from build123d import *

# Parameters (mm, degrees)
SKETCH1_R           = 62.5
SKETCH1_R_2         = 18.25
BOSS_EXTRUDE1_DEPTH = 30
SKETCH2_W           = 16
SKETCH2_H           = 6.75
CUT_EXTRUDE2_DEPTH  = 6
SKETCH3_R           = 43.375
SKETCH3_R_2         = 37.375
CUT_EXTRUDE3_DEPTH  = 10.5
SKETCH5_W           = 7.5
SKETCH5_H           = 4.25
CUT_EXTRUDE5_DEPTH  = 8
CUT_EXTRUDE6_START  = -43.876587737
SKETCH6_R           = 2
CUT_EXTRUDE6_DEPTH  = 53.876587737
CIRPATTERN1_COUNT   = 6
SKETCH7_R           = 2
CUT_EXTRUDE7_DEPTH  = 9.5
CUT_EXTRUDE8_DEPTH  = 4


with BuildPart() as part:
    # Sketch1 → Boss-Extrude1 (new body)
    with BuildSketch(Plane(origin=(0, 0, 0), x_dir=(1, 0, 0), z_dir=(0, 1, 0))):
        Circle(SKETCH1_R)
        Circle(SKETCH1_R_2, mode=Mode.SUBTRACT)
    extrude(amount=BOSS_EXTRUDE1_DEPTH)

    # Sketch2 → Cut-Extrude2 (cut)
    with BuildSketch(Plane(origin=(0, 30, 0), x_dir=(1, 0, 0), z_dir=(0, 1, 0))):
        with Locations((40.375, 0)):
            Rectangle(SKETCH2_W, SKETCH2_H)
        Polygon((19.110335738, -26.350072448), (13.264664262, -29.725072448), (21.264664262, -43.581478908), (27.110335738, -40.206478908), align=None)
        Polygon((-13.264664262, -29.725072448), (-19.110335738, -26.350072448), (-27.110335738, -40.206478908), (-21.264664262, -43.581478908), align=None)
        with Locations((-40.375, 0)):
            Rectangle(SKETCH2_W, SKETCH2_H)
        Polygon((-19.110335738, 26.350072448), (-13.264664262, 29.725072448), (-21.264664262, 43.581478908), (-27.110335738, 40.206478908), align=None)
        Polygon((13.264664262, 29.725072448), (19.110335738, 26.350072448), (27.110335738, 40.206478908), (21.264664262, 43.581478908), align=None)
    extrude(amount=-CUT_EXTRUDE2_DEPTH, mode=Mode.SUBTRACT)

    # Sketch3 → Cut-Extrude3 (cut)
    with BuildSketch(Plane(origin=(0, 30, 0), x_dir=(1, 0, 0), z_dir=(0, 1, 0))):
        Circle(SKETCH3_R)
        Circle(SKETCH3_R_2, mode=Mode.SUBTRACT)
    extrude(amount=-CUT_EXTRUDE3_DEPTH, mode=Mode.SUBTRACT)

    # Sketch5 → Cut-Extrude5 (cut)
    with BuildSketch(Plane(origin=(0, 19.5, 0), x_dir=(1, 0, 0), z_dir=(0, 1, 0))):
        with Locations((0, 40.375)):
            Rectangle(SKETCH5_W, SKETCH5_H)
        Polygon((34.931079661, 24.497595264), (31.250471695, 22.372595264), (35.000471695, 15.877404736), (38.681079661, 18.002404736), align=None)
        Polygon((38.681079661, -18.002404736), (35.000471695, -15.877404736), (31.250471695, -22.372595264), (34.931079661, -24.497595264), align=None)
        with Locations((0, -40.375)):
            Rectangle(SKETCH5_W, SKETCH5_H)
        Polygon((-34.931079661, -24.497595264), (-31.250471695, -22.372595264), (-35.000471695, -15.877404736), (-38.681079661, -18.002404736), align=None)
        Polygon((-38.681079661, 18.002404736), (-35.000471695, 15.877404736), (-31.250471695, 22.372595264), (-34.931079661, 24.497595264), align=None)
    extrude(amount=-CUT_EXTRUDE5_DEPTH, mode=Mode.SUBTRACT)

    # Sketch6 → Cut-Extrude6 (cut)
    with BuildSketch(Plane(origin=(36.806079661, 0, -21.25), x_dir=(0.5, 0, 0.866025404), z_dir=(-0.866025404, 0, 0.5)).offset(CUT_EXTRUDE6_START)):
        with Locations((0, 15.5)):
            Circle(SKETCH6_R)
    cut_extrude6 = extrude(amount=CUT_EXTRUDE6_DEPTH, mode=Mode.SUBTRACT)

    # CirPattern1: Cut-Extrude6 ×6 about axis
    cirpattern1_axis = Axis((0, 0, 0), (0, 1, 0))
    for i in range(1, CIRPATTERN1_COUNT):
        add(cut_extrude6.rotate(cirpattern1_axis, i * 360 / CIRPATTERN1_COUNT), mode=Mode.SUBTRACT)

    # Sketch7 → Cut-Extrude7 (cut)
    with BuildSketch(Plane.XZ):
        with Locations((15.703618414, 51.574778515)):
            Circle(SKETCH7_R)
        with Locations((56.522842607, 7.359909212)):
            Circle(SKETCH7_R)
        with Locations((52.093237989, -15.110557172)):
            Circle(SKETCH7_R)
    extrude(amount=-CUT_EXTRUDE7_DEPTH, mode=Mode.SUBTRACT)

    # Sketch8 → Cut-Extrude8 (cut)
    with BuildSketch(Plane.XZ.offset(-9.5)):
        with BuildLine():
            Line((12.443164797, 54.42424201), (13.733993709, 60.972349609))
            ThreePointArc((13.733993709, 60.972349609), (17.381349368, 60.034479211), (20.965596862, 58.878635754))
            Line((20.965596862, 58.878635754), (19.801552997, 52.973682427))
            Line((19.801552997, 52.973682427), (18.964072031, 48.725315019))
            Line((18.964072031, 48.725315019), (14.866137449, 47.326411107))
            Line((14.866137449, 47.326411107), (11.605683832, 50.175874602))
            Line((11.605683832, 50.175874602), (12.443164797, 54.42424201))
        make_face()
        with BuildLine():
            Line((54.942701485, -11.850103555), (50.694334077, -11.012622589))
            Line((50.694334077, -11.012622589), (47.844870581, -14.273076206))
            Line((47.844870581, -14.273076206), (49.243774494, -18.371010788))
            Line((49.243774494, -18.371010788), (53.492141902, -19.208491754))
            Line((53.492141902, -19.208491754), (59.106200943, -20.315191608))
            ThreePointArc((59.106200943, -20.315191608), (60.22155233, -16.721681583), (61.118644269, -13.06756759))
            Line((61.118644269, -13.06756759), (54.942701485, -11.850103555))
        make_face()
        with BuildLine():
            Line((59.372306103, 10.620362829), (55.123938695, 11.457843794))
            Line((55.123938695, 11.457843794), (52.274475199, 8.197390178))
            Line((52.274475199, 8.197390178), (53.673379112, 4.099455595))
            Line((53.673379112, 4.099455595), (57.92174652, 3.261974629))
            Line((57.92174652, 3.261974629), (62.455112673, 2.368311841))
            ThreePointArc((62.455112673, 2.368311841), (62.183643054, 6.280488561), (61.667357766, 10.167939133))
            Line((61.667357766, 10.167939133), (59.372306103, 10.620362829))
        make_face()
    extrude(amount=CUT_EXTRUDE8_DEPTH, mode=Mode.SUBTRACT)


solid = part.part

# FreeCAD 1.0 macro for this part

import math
import FreeCAD as App
import Part
import Sketcher
from FreeCAD import Vector
Q = App.Units.Quantity


def add_polygon(sketch, points):
    """Adds a closed chain of lines whose ends are joined by coincident constraints."""
    first, n = sketch.GeometryCount, len(points)
    for a, b in zip(points, points[1:] + points[:1]):
        sketch.addGeometry(Part.LineSegment(App.Vector(*a, 0), App.Vector(*b, 0)), False)
    for i in range(n):
        sketch.addConstraint(Sketcher.Constraint("Coincident", first + i, 2, first + (i + 1) % n, 1))

doc = App.newDocument("Part")
body = doc.addObject("PartDesign::Body", "Body")

# Sketch on XZ plane
sketch1 = doc.addObject("Sketcher::SketchObject", "Sketch")
body.addObject(sketch1)
sketch1.AttachmentSupport = (doc.XZ_Plane, [""])
sketch1.MapMode = "FlatFace"
sketch1.addGeometry(Part.Circle(Vector(0, 0, 0), Vector(0, 0, 1), 62), False)
sketch1.addGeometry(Part.Circle(Vector(0, 0, 0), Vector(0, 0, 1), 18), False)
sketch1.addConstraint(Sketcher.Constraint("Coincident", 0, 3, -1, 1))
sketch1.addConstraint(Sketcher.Constraint("Coincident", 1, 3, -1, 1))
sketch1.addConstraint(Sketcher.Constraint("Diameter", 0, Q("125 mm")))
sketch1.addConstraint(Sketcher.Constraint("Diameter", 1, Q("36.5 mm")))
pad1 = doc.addObject("PartDesign::Pad", "Pad")
body.addObject(pad1)
pad1.Profile = sketch1
pad1.Length = 30
pad1.Reversed = True

# Sketch on XZ plane
sketch2 = doc.addObject("Sketcher::SketchObject", "Sketch001")
body.addObject(sketch2)
sketch2.AttachmentSupport = (doc.XZ_Plane, [""])
sketch2.MapMode = "FlatFace"
sketch2.AttachmentOffset = App.Placement(Vector(0, 0, -30), App.Rotation())
add_polygon(sketch2, [(32, -3), (32, 3), (48, 3), (48, -3)])  # lines 0-3
add_polygon(sketch2, [(19, 26), (13, 30), (21, 44), (27, 40)])  # lines 4-7
add_polygon(sketch2, [(-13, 30), (-19, 26), (-27, 40), (-21, 44)])  # lines 8-11
add_polygon(sketch2, [(-48, -3), (-48, 3), (-32, 3), (-32, -3)])  # lines 12-15
add_polygon(sketch2, [(-19, -26), (-13, -30), (-21, -44), (-27, -40)])  # lines 16-19
add_polygon(sketch2, [(13, -30), (19, -26), (27, -40), (21, -44)])  # lines 20-23
sketch2.addConstraint(Sketcher.Constraint("Vertical", 0))
sketch2.addConstraint(Sketcher.Constraint("Horizontal", 1))
sketch2.addConstraint(Sketcher.Constraint("Vertical", 2))
sketch2.addConstraint(Sketcher.Constraint("Horizontal", 3))
sketch2.addConstraint(Sketcher.Constraint("Vertical", 12))
sketch2.addConstraint(Sketcher.Constraint("Horizontal", 13))
sketch2.addConstraint(Sketcher.Constraint("Vertical", 14))
sketch2.addConstraint(Sketcher.Constraint("Horizontal", 15))
sketch2.addConstraint(Sketcher.Constraint("Symmetric", 2, 2, 12, 2, -1, 1))
sketch2.addConstraint(Sketcher.Constraint("Symmetric", 0, 2, 14, 2, -1, 1))
sketch2.addConstraint(Sketcher.Constraint("Symmetric", 4, 2, 16, 2, -1, 1))
sketch2.addConstraint(Sketcher.Constraint("Symmetric", 5, 2, 17, 2, -1, 1))
sketch2.addConstraint(Sketcher.Constraint("Symmetric", 6, 2, 18, 2, -1, 1))
sketch2.addConstraint(Sketcher.Constraint("Symmetric", 7, 2, 19, 2, -1, 1))
sketch2.addConstraint(Sketcher.Constraint("Symmetric", 8, 2, 20, 2, -1, 1))
sketch2.addConstraint(Sketcher.Constraint("Symmetric", 9, 2, 21, 2, -1, 1))
sketch2.addConstraint(Sketcher.Constraint("Symmetric", 10, 2, 22, 2, -1, 1))
sketch2.addConstraint(Sketcher.Constraint("Symmetric", 11, 2, 23, 2, -1, 1))
sketch2.addConstraint(Sketcher.Constraint("Symmetric", 7, 2, 8, 2, -2))
sketch2.addConstraint(Sketcher.Constraint("Symmetric", 6, 2, 9, 2, -2))
sketch2.addConstraint(Sketcher.Constraint("Symmetric", 5, 2, 10, 2, -2))
sketch2.addConstraint(Sketcher.Constraint("Symmetric", 4, 2, 11, 2, -2))
sketch2.addConstraint(Sketcher.Constraint("Perpendicular", 4, 5))
sketch2.addConstraint(Sketcher.Constraint("Perpendicular", 5, 6))
sketch2.addConstraint(Sketcher.Constraint("Perpendicular", 6, 7))
sketch2.addConstraint(Sketcher.Constraint("Horizontal", 1, 2, 12, 2))
sketch2.addConstraint(Sketcher.Constraint("DistanceX", 1, 1, 1, 2, Q("16 mm")))
sketch2.addConstraint(Sketcher.Constraint("Angle", 4, Q("150 deg")))
sketch2.addConstraint(Sketcher.Constraint("Distance", 5, Q("16 mm")))
sketch2.addConstraint(Sketcher.Constraint("DistanceY", 0, 1, 0, 2, Q("6.75 mm")))
sketch2.addConstraint(Sketcher.Constraint("Distance", 4, Q("6.75 mm")))
sketch2.addConstraint(Sketcher.Constraint("DistanceX", -1, 1, 0, 2, Q("32.375 mm")))
sketch2.addConstraint(Sketcher.Constraint("DistanceX", 8, 2, 4, 2, Q("32.375 mm")))
sketch2.addConstraint(Sketcher.Constraint("DistanceY", -1, 1, 5, 2, Q("43.581479 mm")))
pocket1 = doc.addObject("PartDesign::Pocket", "Pocket")
body.addObject(pocket1)
pocket1.Profile = sketch2
pocket1.Length = 6
pocket1.Reversed = True

# Sketch on XZ plane
sketch3 = doc.addObject("Sketcher::SketchObject", "Sketch002")
body.addObject(sketch3)
sketch3.AttachmentSupport = (doc.XZ_Plane, [""])
sketch3.MapMode = "FlatFace"
sketch3.AttachmentOffset = App.Placement(Vector(0, 0, -30), App.Rotation())
sketch3.addGeometry(Part.Circle(Vector(0, 0, 0), Vector(0, 0, 1), 43), False)
sketch3.addGeometry(Part.Circle(Vector(0, 0, 0), Vector(0, 0, 1), 37), False)
sketch3.addConstraint(Sketcher.Constraint("Coincident", 0, 3, -1, 1))
sketch3.addConstraint(Sketcher.Constraint("Coincident", 1, 3, -1, 1))
sketch3.addConstraint(Sketcher.Constraint("Diameter", 0, Q("86.75 mm")))
sketch3.addConstraint(Sketcher.Constraint("Diameter", 1, Q("74.75 mm")))
pocket2 = doc.addObject("PartDesign::Pocket", "Pocket001")
body.addObject(pocket2)
pocket2.Profile = sketch3
pocket2.Length = 10.5
pocket2.Reversed = True

# Sketch on XZ plane
sketch4 = doc.addObject("Sketcher::SketchObject", "Sketch003")
body.addObject(sketch4)
sketch4.AttachmentSupport = (doc.XZ_Plane, [""])
sketch4.MapMode = "FlatFace"
sketch4.AttachmentOffset = App.Placement(Vector(0, 0, -19.5), App.Rotation())
add_polygon(sketch4, [(-3.8, -42.5), (-3.8, -38.2), (3.8, -38.2), (3.8, -42.5)])  # lines 0-3
add_polygon(sketch4, [(34.9, -24.5), (31.3, -22.4), (35, -15.9), (38.7, -18)])  # lines 4-7
add_polygon(sketch4, [(38.7, 18), (35, 15.9), (31.3, 22.4), (34.9, 24.5)])  # lines 8-11
add_polygon(sketch4, [(-3.8, 38.2), (-3.8, 42.5), (3.8, 42.5), (3.8, 38.2)])  # lines 12-15
add_polygon(sketch4, [(-34.9, 24.5), (-31.3, 22.4), (-35, 15.9), (-38.7, 18)])  # lines 16-19
add_polygon(sketch4, [(-38.7, -18), (-35, -15.9), (-31.3, -22.4), (-34.9, -24.5)])  # lines 20-23
sketch4.addConstraint(Sketcher.Constraint("Vertical", 0))
sketch4.addConstraint(Sketcher.Constraint("Horizontal", 1))
sketch4.addConstraint(Sketcher.Constraint("Vertical", 2))
sketch4.addConstraint(Sketcher.Constraint("Horizontal", 3))
sketch4.addConstraint(Sketcher.Constraint("Vertical", 12))
sketch4.addConstraint(Sketcher.Constraint("Horizontal", 13))
sketch4.addConstraint(Sketcher.Constraint("Vertical", 14))
sketch4.addConstraint(Sketcher.Constraint("Horizontal", 15))
sketch4.addConstraint(Sketcher.Constraint("Symmetric", 2, 2, 12, 2, -1, 1))
sketch4.addConstraint(Sketcher.Constraint("Symmetric", 0, 2, 14, 2, -1, 1))
sketch4.addConstraint(Sketcher.Constraint("Symmetric", 4, 2, 16, 2, -1, 1))
sketch4.addConstraint(Sketcher.Constraint("Symmetric", 5, 2, 17, 2, -1, 1))
sketch4.addConstraint(Sketcher.Constraint("Symmetric", 6, 2, 18, 2, -1, 1))
sketch4.addConstraint(Sketcher.Constraint("Symmetric", 7, 2, 19, 2, -1, 1))
sketch4.addConstraint(Sketcher.Constraint("Symmetric", 8, 2, 20, 2, -1, 1))
sketch4.addConstraint(Sketcher.Constraint("Symmetric", 9, 2, 21, 2, -1, 1))
sketch4.addConstraint(Sketcher.Constraint("Symmetric", 10, 2, 22, 2, -1, 1))
sketch4.addConstraint(Sketcher.Constraint("Symmetric", 11, 2, 23, 2, -1, 1))
sketch4.addConstraint(Sketcher.Constraint("Symmetric", 9, 2, 16, 2, -2))
sketch4.addConstraint(Sketcher.Constraint("Symmetric", 8, 2, 17, 2, -2))
sketch4.addConstraint(Sketcher.Constraint("Symmetric", 11, 2, 18, 2, -2))
sketch4.addConstraint(Sketcher.Constraint("Symmetric", 10, 2, 19, 2, -2))
sketch4.addConstraint(Sketcher.Constraint("Perpendicular", 4, 5))
sketch4.addConstraint(Sketcher.Constraint("Perpendicular", 5, 6))
sketch4.addConstraint(Sketcher.Constraint("Perpendicular", 6, 7))
sketch4.addConstraint(Sketcher.Constraint("Vertical", 3, 2, 12, 2))
sketch4.addConstraint(Sketcher.Constraint("Angle", 4, Q("150 deg")))
sketch4.addConstraint(Sketcher.Constraint("DistanceX", 1, 1, 1, 2, Q("7.5 mm")))
sketch4.addConstraint(Sketcher.Constraint("Distance", 5, Q("7.5 mm")))
sketch4.addConstraint(Sketcher.Constraint("DistanceY", 0, 1, 0, 2, Q("4.25 mm")))
sketch4.addConstraint(Sketcher.Constraint("DistanceY", 2, 2, -1, 1, Q("42.5 mm")))
sketch4.addConstraint(Sketcher.Constraint("DistanceY", 6, 2, 10, 2, Q("42.5 mm")))
sketch4.addConstraint(Sketcher.Constraint("Distance", 4, Q("4.25 mm")))
sketch4.addConstraint(Sketcher.Constraint("DistanceX", -1, 1, 4, 2, Q("31.250472 mm")))
pocket3 = doc.addObject("PartDesign::Pocket", "Pocket002")
body.addObject(pocket3)
pocket3.Profile = sketch4
pocket3.Length = 8
pocket3.Reversed = True

# Sketch on an angled plane
sketch5 = doc.addObject("Sketcher::SketchObject", "Sketch004")
body.addObject(sketch5)
sketch5.Placement = App.Placement(Vector(74.804319, 0, -43.188294), App.Rotation(Vector(0.5, 0, 0.866025404), Vector(0, 1, 0), Vector(-0.866025404, 0, 0.5), "ZXY"))
sketch5.addGeometry(Part.Circle(Vector(0, 15.5, 0), Vector(0, 0, 1), 2), False)
sketch5.addConstraint(Sketcher.Constraint("PointOnObject", 0, 3, -2))
sketch5.addConstraint(Sketcher.Constraint("Diameter", 0, Q("4 mm")))
sketch5.addConstraint(Sketcher.Constraint("DistanceY", -1, 1, 0, 3, Q("15.5 mm")))
pocket4 = doc.addObject("PartDesign::Pocket", "Pocket003")
body.addObject(pocket4)
pocket4.Profile = sketch5
pocket4.Length = 53.876588
pocket4.Reversed = True
doc.recompute()

polarpattern = doc.addObject("PartDesign::PolarPattern", "PolarPattern")
body.addObject(polarpattern)
polarpattern.Originals = [pocket4]
polarpattern.Axis = (doc.Y_Axis, [""])
polarpattern.Angle = 360
polarpattern.Occurrences = 6
body.Tip = polarpattern

# Sketch on XZ plane
sketch6 = doc.addObject("Sketcher::SketchObject", "Sketch005")
body.addObject(sketch6)
sketch6.AttachmentSupport = (doc.XZ_Plane, [""])
sketch6.MapMode = "FlatFace"
sketch6.addGeometry(Part.Circle(Vector(15.7, 51.6, 0), Vector(0, 0, 1), 2), False)
sketch6.addGeometry(Part.Circle(Vector(56.5, 7.4, 0), Vector(0, 0, 1), 2), False)
sketch6.addGeometry(Part.Circle(Vector(52.1, -15.1, 0), Vector(0, 0, 1), 2), False)
sketch6.addConstraint(Sketcher.Constraint("Equal", 0, 1))
sketch6.addConstraint(Sketcher.Constraint("Equal", 1, 2))
sketch6.addConstraint(Sketcher.Constraint("Diameter", 0, Q("4 mm")))
sketch6.addConstraint(Sketcher.Constraint("DistanceX", -1, 1, 0, 3, Q("15.703618 mm")))
sketch6.addConstraint(Sketcher.Constraint("DistanceY", -1, 1, 0, 3, Q("51.574779 mm")))
sketch6.addConstraint(Sketcher.Constraint("DistanceY", -1, 1, 1, 3, Q("7.359909 mm")))
sketch6.addConstraint(Sketcher.Constraint("DistanceX", 0, 3, 2, 3, Q("36.38962 mm")))
sketch6.addConstraint(Sketcher.Constraint("DistanceX", -1, 1, 1, 3, Q("56.522843 mm")))
sketch6.addConstraint(Sketcher.Constraint("DistanceY", 2, 3, -1, 1, Q("15.110557 mm")))
pocket5 = doc.addObject("PartDesign::Pocket", "Pocket004")
body.addObject(pocket5)
pocket5.Profile = sketch6
pocket5.Length = 9.5

# Sketch on XZ plane
sketch7 = doc.addObject("Sketcher::SketchObject", "Sketch006")
body.addObject(sketch7)
sketch7.AttachmentSupport = (doc.XZ_Plane, [""])
sketch7.MapMode = "FlatFace"
sketch7.AttachmentOffset = App.Placement(Vector(0, 0, -9.5), App.Rotation())
sketch7.addGeometry(Part.LineSegment(Vector(13.7, 61, 0), Vector(12.4, 54.4, 0)), False)
sketch7.addGeometry(Part.LineSegment(Vector(12.4, 54.4, 0), Vector(11.6, 50.2, 0)), False)
sketch7.addGeometry(Part.LineSegment(Vector(11.6, 50.2, 0), Vector(14.9, 47.3, 0)), False)
sketch7.addGeometry(Part.LineSegment(Vector(14.9, 47.3, 0), Vector(19, 48.7, 0)), False)
sketch7.addGeometry(Part.LineSegment(Vector(19, 48.7, 0), Vector(19.8, 53, 0)), False)
sketch7.addGeometry(Part.LineSegment(Vector(19.8, 53, 0), Vector(21, 58.9, 0)), False)
sketch7.addGeometry(Part.ArcOfCircle(Part.Circle(Vector(0, 0, 0), Vector(0, 0, 1), 62.5), math.radians(70.4), math.radians(77.31)), False)
sketch7.addGeometry(Part.LineSegment(Vector(54.9, -11.9, 0), Vector(50.7, -11, 0)), False)
sketch7.addGeometry(Part.LineSegment(Vector(50.7, -11, 0), Vector(47.8, -14.3, 0)), False)
sketch7.addGeometry(Part.LineSegment(Vector(47.8, -14.3, 0), Vector(49.2, -18.4, 0)), False)
sketch7.addGeometry(Part.LineSegment(Vector(49.2, -18.4, 0), Vector(53.5, -19.2, 0)), False)
sketch7.addGeometry(Part.LineSegment(Vector(53.5, -19.2, 0), Vector(59.1, -20.3, 0)), False)
sketch7.addGeometry(Part.ArcOfCircle(Part.Circle(Vector(0, 0, 0), Vector(0, 0, 1), 62.5), math.radians(-18.97), math.radians(-12.07)), False)
sketch7.addGeometry(Part.LineSegment(Vector(61.1, -13.1, 0), Vector(54.9, -11.9, 0)), False)
sketch7.addGeometry(Part.LineSegment(Vector(59.4, 10.6, 0), Vector(55.1, 11.5, 0)), False)
sketch7.addGeometry(Part.LineSegment(Vector(55.1, 11.5, 0), Vector(52.3, 8.2, 0)), False)
sketch7.addGeometry(Part.LineSegment(Vector(52.3, 8.2, 0), Vector(53.7, 4.1, 0)), False)
sketch7.addGeometry(Part.LineSegment(Vector(53.7, 4.1, 0), Vector(57.9, 3.3, 0)), False)
sketch7.addGeometry(Part.LineSegment(Vector(57.9, 3.3, 0), Vector(62.5, 2.4, 0)), False)
sketch7.addGeometry(Part.ArcOfCircle(Part.Circle(Vector(0, 0, 0), Vector(0, 0, 1), 62.5), math.radians(2.17), math.radians(9.36)), False)
sketch7.addGeometry(Part.LineSegment(Vector(61.7, 10.2, 0), Vector(59.4, 10.6, 0)), False)
sketch7.addConstraint(Sketcher.Constraint("Coincident", 0, 2, 1, 1))
sketch7.addConstraint(Sketcher.Constraint("Coincident", 1, 2, 2, 1))
sketch7.addConstraint(Sketcher.Constraint("Coincident", 2, 2, 3, 1))
sketch7.addConstraint(Sketcher.Constraint("Coincident", 3, 2, 4, 1))
sketch7.addConstraint(Sketcher.Constraint("Coincident", 4, 2, 5, 1))
sketch7.addConstraint(Sketcher.Constraint("Coincident", 5, 2, 6, 1))
sketch7.addConstraint(Sketcher.Constraint("Coincident", 6, 2, 0, 1))
sketch7.addConstraint(Sketcher.Constraint("Coincident", 7, 2, 8, 1))
sketch7.addConstraint(Sketcher.Constraint("Coincident", 8, 2, 9, 1))
sketch7.addConstraint(Sketcher.Constraint("Coincident", 9, 2, 10, 1))
sketch7.addConstraint(Sketcher.Constraint("Coincident", 10, 2, 11, 1))
sketch7.addConstraint(Sketcher.Constraint("Coincident", 11, 2, 12, 1))
sketch7.addConstraint(Sketcher.Constraint("Coincident", 12, 2, 13, 1))
sketch7.addConstraint(Sketcher.Constraint("Coincident", 13, 2, 7, 1))
sketch7.addConstraint(Sketcher.Constraint("Coincident", 14, 2, 15, 1))
sketch7.addConstraint(Sketcher.Constraint("Coincident", 15, 2, 16, 1))
sketch7.addConstraint(Sketcher.Constraint("Coincident", 16, 2, 17, 1))
sketch7.addConstraint(Sketcher.Constraint("Coincident", 17, 2, 18, 1))
sketch7.addConstraint(Sketcher.Constraint("Coincident", 18, 2, 19, 1))
sketch7.addConstraint(Sketcher.Constraint("Coincident", 19, 2, 20, 1))
sketch7.addConstraint(Sketcher.Constraint("Coincident", 20, 2, 14, 1))
sketch7.addConstraint(Sketcher.Constraint("Coincident", 6, 3, -1, 1))
sketch7.addConstraint(Sketcher.Constraint("Coincident", 12, 3, -1, 1))
sketch7.addConstraint(Sketcher.Constraint("Coincident", 19, 3, -1, 1))
sketch7.addConstraint(Sketcher.Constraint("Equal", 6, 12))
sketch7.addConstraint(Sketcher.Constraint("Equal", 12, 19))
sketch7.addConstraint(Sketcher.Constraint("Parallel", 0, 1))
sketch7.addConstraint(Sketcher.Constraint("Parallel", 1, 4))
sketch7.addConstraint(Sketcher.Constraint("Parallel", 4, 5))
sketch7.addConstraint(Sketcher.Constraint("Perpendicular", 5, 7))
sketch7.addConstraint(Sketcher.Constraint("Perpendicular", 2, 8))
sketch7.addConstraint(Sketcher.Constraint("Perpendicular", 3, 9))
sketch7.addConstraint(Sketcher.Constraint("Parallel", 7, 10))
sketch7.addConstraint(Sketcher.Constraint("Parallel", 10, 11))
sketch7.addConstraint(Sketcher.Constraint("Parallel", 11, 13))
sketch7.addConstraint(Sketcher.Constraint("Parallel", 13, 14))
sketch7.addConstraint(Sketcher.Constraint("Parallel", 8, 15))
sketch7.addConstraint(Sketcher.Constraint("Parallel", 9, 16))
sketch7.addConstraint(Sketcher.Constraint("Parallel", 14, 17))
sketch7.addConstraint(Sketcher.Constraint("Parallel", 17, 18))
sketch7.addConstraint(Sketcher.Constraint("Parallel", 18, 20))
sketch7.addConstraint(Sketcher.Constraint("Equal", 1, 2))
sketch7.addConstraint(Sketcher.Constraint("Equal", 2, 3))
sketch7.addConstraint(Sketcher.Constraint("Equal", 3, 4))
sketch7.addConstraint(Sketcher.Constraint("Equal", 4, 7))
sketch7.addConstraint(Sketcher.Constraint("Equal", 7, 8))
sketch7.addConstraint(Sketcher.Constraint("Equal", 8, 9))
sketch7.addConstraint(Sketcher.Constraint("Equal", 9, 10))
sketch7.addConstraint(Sketcher.Constraint("Equal", 10, 14))
sketch7.addConstraint(Sketcher.Constraint("Equal", 14, 15))
sketch7.addConstraint(Sketcher.Constraint("Equal", 15, 16))
sketch7.addConstraint(Sketcher.Constraint("Equal", 16, 17))
sketch7.addConstraint(Sketcher.Constraint("Radius", 6, Q("62.5 mm")))
sketch7.addConstraint(Sketcher.Constraint("Distance", 11, Q("5.722101 mm")))
sketch7.addConstraint(Sketcher.Constraint("Distance", 13, Q("6.294798 mm")))
sketch7.addConstraint(Sketcher.Constraint("DistanceX", -1, 1, 11, 2, Q("59.106201 mm")))
sketch7.addConstraint(Sketcher.Constraint("DistanceX", -1, 1, 13, 2, Q("54.942701 mm")))
sketch7.addConstraint(Sketcher.Constraint("DistanceX", 3, 2, 8, 2, Q("28.880799 mm")))
sketch7.addConstraint(Sketcher.Constraint("DistanceY", 11, 2, 10, 2, Q("1.1067 mm")))
sketch7.addConstraint(Sketcher.Constraint("Distance", 18, Q("4.620611 mm")))
sketch7.addConstraint(Sketcher.Constraint("Distance", 20, Q("2.33922 mm")))
sketch7.addConstraint(Sketcher.Constraint("DistanceY", -1, 1, 2, 2, Q("47.326411 mm")))
sketch7.addConstraint(Sketcher.Constraint("DistanceY", -1, 1, 6, 2, Q("60.97235 mm")))
pocket6 = doc.addObject("PartDesign::Pocket", "Pocket005")
body.addObject(pocket6)
pocket6.Profile = sketch7
pocket6.Length = 4
pocket6.Reversed = True

doc.recompute()
